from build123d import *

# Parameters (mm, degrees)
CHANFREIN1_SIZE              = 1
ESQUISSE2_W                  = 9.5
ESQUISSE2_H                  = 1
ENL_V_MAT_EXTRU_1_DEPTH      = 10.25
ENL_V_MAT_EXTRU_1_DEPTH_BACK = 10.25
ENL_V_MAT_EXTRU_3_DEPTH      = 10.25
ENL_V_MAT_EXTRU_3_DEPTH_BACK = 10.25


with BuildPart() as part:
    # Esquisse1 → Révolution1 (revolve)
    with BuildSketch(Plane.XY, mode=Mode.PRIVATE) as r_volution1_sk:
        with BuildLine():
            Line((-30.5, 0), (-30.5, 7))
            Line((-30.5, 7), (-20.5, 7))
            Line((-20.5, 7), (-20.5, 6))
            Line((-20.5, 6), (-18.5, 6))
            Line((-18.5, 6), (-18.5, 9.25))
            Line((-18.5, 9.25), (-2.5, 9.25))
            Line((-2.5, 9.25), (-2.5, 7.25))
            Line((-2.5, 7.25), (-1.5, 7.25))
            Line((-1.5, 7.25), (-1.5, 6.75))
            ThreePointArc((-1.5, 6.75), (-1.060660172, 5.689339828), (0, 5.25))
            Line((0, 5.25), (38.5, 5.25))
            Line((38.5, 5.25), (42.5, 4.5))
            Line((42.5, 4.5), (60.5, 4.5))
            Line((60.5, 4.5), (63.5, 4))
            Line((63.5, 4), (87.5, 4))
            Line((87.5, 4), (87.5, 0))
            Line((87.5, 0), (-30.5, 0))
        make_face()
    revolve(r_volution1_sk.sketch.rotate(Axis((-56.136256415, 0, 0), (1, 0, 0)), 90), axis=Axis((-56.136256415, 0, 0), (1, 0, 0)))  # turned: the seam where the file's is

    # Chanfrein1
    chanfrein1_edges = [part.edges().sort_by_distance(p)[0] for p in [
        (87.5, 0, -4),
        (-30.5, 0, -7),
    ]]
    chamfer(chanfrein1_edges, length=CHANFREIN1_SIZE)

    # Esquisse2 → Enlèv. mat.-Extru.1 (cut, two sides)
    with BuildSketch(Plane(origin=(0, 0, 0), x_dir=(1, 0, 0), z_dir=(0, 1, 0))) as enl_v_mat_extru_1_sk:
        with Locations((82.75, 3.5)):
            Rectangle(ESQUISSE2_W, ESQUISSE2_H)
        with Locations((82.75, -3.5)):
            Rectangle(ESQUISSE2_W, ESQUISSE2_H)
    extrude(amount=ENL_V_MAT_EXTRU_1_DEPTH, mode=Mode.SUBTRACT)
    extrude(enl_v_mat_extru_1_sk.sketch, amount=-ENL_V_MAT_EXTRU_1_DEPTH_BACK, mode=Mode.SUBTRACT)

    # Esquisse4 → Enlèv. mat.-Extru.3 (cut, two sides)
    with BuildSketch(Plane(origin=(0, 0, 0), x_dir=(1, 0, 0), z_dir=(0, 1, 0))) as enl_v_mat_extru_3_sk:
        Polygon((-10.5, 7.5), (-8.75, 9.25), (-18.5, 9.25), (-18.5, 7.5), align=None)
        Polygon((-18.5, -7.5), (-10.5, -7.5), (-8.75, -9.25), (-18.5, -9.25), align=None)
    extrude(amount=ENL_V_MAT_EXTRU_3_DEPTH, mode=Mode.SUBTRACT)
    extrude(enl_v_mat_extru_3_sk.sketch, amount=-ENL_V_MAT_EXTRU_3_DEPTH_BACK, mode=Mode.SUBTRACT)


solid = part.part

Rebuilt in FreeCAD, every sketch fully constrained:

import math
import FreeCAD as App
import Part
import Sketcher
from FreeCAD import Vector
Q = App.Units.Quantity


def edges_at(feature, points):
    """Names of the edges that pass closest to the given points."""
    edges = feature.Shape.Edges
    near = lambda p: min(range(len(edges)), key=lambda i: edges[i].distToShape(Part.Vertex(*p))[0])
    return sorted({f"Edge{near(p) + 1}" for p in points})

doc = App.newDocument("Part")
body = doc.addObject("PartDesign::Body", "Body")

# Sketch on XY plane
sketch1 = doc.addObject("Sketcher::SketchObject", "Sketch")
body.addObject(sketch1)
sketch1.AttachmentSupport = (doc.XY_Plane, [""])
sketch1.MapMode = "FlatFace"
sketch1.addGeometry([
    Part.LineSegment(Vector(-30.5, 7, 0), Vector(-30.5, 0, 0)),  # 0
    Part.LineSegment(Vector(-30.5, 0, 0), Vector(87.5, 0, 0)),  # 1
    Part.LineSegment(Vector(87.5, 0, 0), Vector(87.5, 4, 0)),  # 2
    Part.LineSegment(Vector(87.5, 4, 0), Vector(63.5, 4, 0)),  # 3
    Part.LineSegment(Vector(63.5, 4, 0), Vector(60.5, 4.5, 0)),  # 4
    Part.LineSegment(Vector(60.5, 4.5, 0), Vector(42.5, 4.5, 0)),  # 5
    Part.LineSegment(Vector(42.5, 4.5, 0), Vector(38.5, 5.2, 0)),  # 6
    Part.LineSegment(Vector(38.5, 5.2, 0), Vector(0, 5.2, 0)),  # 7
    Part.ArcOfCircle(Part.Circle(Vector(0, 6.7, 0), Vector(0, 0, 1), 1.5), math.radians(180), math.radians(270)),  # 8
    Part.LineSegment(Vector(-1.5, 6.8, 0), Vector(-1.5, 7.2, 0)),  # 9
    Part.LineSegment(Vector(-1.5, 7.2, 0), Vector(-2.5, 7.2, 0)),  # 10
    Part.LineSegment(Vector(-2.5, 7.2, 0), Vector(-2.5, 9.2, 0)),  # 11
    Part.LineSegment(Vector(-2.5, 9.2, 0), Vector(-18.5, 9.2, 0)),  # 12
    Part.LineSegment(Vector(-18.5, 9.2, 0), Vector(-18.5, 6, 0)),  # 13
    Part.LineSegment(Vector(-18.5, 6, 0), Vector(-20.5, 6, 0)),  # 14
    Part.LineSegment(Vector(-20.5, 6, 0), Vector(-20.5, 7, 0)),  # 15
    Part.LineSegment(Vector(-20.5, 7, 0), Vector(-30.5, 7, 0)),  # 16
], False)
sketch1.addConstraint([
    Sketcher.Constraint("Coincident", 0, 2, 1, 1),
    Sketcher.Constraint("Coincident", 1, 2, 2, 1),
    Sketcher.Constraint("Coincident", 2, 2, 3, 1),
    Sketcher.Constraint("Coincident", 3, 2, 4, 1),
    Sketcher.Constraint("Coincident", 4, 2, 5, 1),
    Sketcher.Constraint("Coincident", 5, 2, 6, 1),
    Sketcher.Constraint("Coincident", 6, 2, 7, 1),
    Sketcher.Constraint("Tangent", 7, 2, 8, 2),
    Sketcher.Constraint("Tangent", 8, 1, 9, 1),
    Sketcher.Constraint("Coincident", 9, 2, 10, 1),
    Sketcher.Constraint("Coincident", 10, 2, 11, 1),
    Sketcher.Constraint("Coincident", 11, 2, 12, 1),
    Sketcher.Constraint("Coincident", 12, 2, 13, 1),
    Sketcher.Constraint("Coincident", 13, 2, 14, 1),
    Sketcher.Constraint("Coincident", 14, 2, 15, 1),
    Sketcher.Constraint("Coincident", 15, 2, 16, 1),
    Sketcher.Constraint("Coincident", 16, 2, 0, 1),
    Sketcher.Constraint("Vertical", 0),
    Sketcher.Constraint("Horizontal", 1),
    Sketcher.Constraint("Vertical", 2),
    Sketcher.Constraint("Horizontal", 3),
    Sketcher.Constraint("Horizontal", 5),
    Sketcher.Constraint("Horizontal", 7),
    Sketcher.Constraint("Vertical", 9),
    Sketcher.Constraint("Horizontal", 10),
    Sketcher.Constraint("Vertical", 11),
    Sketcher.Constraint("Horizontal", 12),
    Sketcher.Constraint("Vertical", 13),
    Sketcher.Constraint("Horizontal", 14),
    Sketcher.Constraint("Vertical", 15),
    Sketcher.Constraint("Horizontal", 16),
    Sketcher.Constraint("PointOnObject", 8, 3, -2),
    Sketcher.Constraint("PointOnObject", 0, 2, -1),
    Sketcher.Constraint("Equal", 14, 11),
    Sketcher.Constraint("Equal", 10, 15),
    Sketcher.Constraint("Radius", 8, Q("1.5 mm")),
    Sketcher.Constraint("DistanceX", 1, 1, 1, 2, Q("118 mm")),
    Sketcher.Constraint("DistanceX", 3, 2, 3, 1, Q("24 mm")),
    Sketcher.Constraint("DistanceX", 5, 2, 5, 1, Q("18 mm")),
    Sketcher.Constraint("DistanceX", 10, 2, 10, 1, Q("1 mm")),
    Sketcher.Constraint("DistanceX", 12, 2, 12, 1, Q("16 mm")),
    Sketcher.Constraint("DistanceX", 14, 2, 14, 1, Q("2 mm")),
    Sketcher.Constraint("DistanceX", 16, 2, 16, 1, Q("10 mm")),
    Sketcher.Constraint("DistanceY", 0, 2, 0, 1, Q("7 mm")),
    Sketcher.Constraint("DistanceY", 2, 1, 2, 2, Q("4 mm")),
    Sketcher.Constraint("DistanceX", 7, 2, 7, 1, Q("38.5 mm")),
    Sketcher.Constraint("DistanceY", 9, 1, 9, 2, Q("0.5 mm")),
    Sketcher.Constraint("DistanceX", 4, 2, 3, 2, Q("3 mm")),
    Sketcher.Constraint("DistanceY", 13, 2, 13, 1, Q("3.25 mm")),
    Sketcher.Constraint("DistanceY", -1, 1, 4, 2, Q("4.5 mm")),
])
revolution = doc.addObject("PartDesign::Revolution", "Revolution")
body.addObject(revolution)
revolution.Profile = sketch1
revolution.ReferenceAxis = (sketch1, ["H_Axis"])
revolution.Angle = 360
doc.recompute()

chamfer = doc.addObject("PartDesign::Chamfer", "Chamfer")
body.addObject(chamfer)
chamfer.Base = (revolution, edges_at(revolution, [(87.5, 0, -4), (-30.5, 0, -7)]))
chamfer.Size = 1

# Sketch on XZ plane
sketch2 = doc.addObject("Sketcher::SketchObject", "Sketch001")
body.addObject(sketch2)
sketch2.AttachmentSupport = (doc.XZ_Plane, [""])
sketch2.MapMode = "FlatFace"
sketch2.addGeometry([
    Part.LineSegment(Vector(78, -4, 0), Vector(78, -3, 0)),  # 0
    Part.LineSegment(Vector(78, -3, 0), Vector(87.5, -3, 0)),  # 1
    Part.LineSegment(Vector(87.5, -3, 0), Vector(87.5, -4, 0)),  # 2
    Part.LineSegment(Vector(87.5, -4, 0), Vector(78, -4, 0)),  # 3
    Part.LineSegment(Vector(78, 3, 0), Vector(78, 4, 0)),  # 4
    Part.LineSegment(Vector(78, 4, 0), Vector(87.5, 4, 0)),  # 5
    Part.LineSegment(Vector(87.5, 4, 0), Vector(87.5, 3, 0)),  # 6
    Part.LineSegment(Vector(87.5, 3, 0), Vector(78, 3, 0)),  # 7
], False)
sketch2.addConstraint([
    Sketcher.Constraint("Coincident", 0, 2, 1, 1),
    Sketcher.Constraint("Coincident", 1, 2, 2, 1),
    Sketcher.Constraint("Coincident", 2, 2, 3, 1),
    Sketcher.Constraint("Coincident", 3, 2, 0, 1),
    Sketcher.Constraint("Coincident", 4, 2, 5, 1),
    Sketcher.Constraint("Coincident", 5, 2, 6, 1),
    Sketcher.Constraint("Coincident", 6, 2, 7, 1),
    Sketcher.Constraint("Coincident", 7, 2, 4, 1),
    Sketcher.Constraint("Vertical", 0),
    Sketcher.Constraint("Horizontal", 1),
    Sketcher.Constraint("Vertical", 2),
    Sketcher.Constraint("Horizontal", 3),
    Sketcher.Constraint("Vertical", 4),
    Sketcher.Constraint("Horizontal", 5),
    Sketcher.Constraint("Vertical", 6),
    Sketcher.Constraint("Horizontal", 7),
    Sketcher.Constraint("Symmetric", 3, 2, 4, 2, -1),
    Sketcher.Constraint("Symmetric", 1, 2, 6, 2, -1),
    Sketcher.Constraint("DistanceY", 0, 1, 0, 2, Q("1 mm")),
    Sketcher.Constraint("DistanceX", 1, 1, 1, 2, Q("9.5 mm")),
    Sketcher.Constraint("DistanceX", -1, 1, 0, 2, Q("78 mm")),
    Sketcher.Constraint("DistanceY", 0, 2, -1, 1, Q("3 mm")),
])
pocket1 = doc.addObject("PartDesign::Pocket", "Pocket")
body.addObject(pocket1)
pocket1.Profile = sketch2
pocket1.Type = "ThroughAll"
pocket1.Midplane = True

# Sketch on XZ plane
sketch3 = doc.addObject("Sketcher::SketchObject", "Sketch002")
body.addObject(sketch3)
sketch3.AttachmentSupport = (doc.XZ_Plane, [""])
sketch3.MapMode = "FlatFace"
sketch3.addGeometry([
    Part.LineSegment(Vector(-10.5, -7.5, 0), Vector(-8.8, -9.2, 0)),  # 0
    Part.LineSegment(Vector(-8.8, -9.2, 0), Vector(-18.5, -9.2, 0)),  # 1
    Part.LineSegment(Vector(-18.5, -9.2, 0), Vector(-18.5, -7.5, 0)),  # 2
    Part.LineSegment(Vector(-18.5, -7.5, 0), Vector(-10.5, -7.5, 0)),  # 3
    Part.LineSegment(Vector(-10.5, 7.5, 0), Vector(-18.5, 7.5, 0)),  # 4
    Part.LineSegment(Vector(-18.5, 7.5, 0), Vector(-18.5, 9.2, 0)),  # 5
    Part.LineSegment(Vector(-18.5, 9.2, 0), Vector(-8.8, 9.2, 0)),  # 6
    Part.LineSegment(Vector(-8.8, 9.2, 0), Vector(-10.5, 7.5, 0)),  # 7
], False)
sketch3.addConstraint([
    Sketcher.Constraint("Coincident", 0, 2, 1, 1),
    Sketcher.Constraint("Coincident", 1, 2, 2, 1),
    Sketcher.Constraint("Coincident", 2, 2, 3, 1),
    Sketcher.Constraint("Coincident", 3, 2, 0, 1),
    Sketcher.Constraint("Coincident", 4, 2, 5, 1),
    Sketcher.Constraint("Coincident", 5, 2, 6, 1),
    Sketcher.Constraint("Coincident", 6, 2, 7, 1),
    Sketcher.Constraint("Coincident", 7, 2, 4, 1),
    Sketcher.Constraint("Horizontal", 1),
    Sketcher.Constraint("Vertical", 2),
    Sketcher.Constraint("Horizontal", 3),
    Sketcher.Constraint("Horizontal", 4),
    Sketcher.Constraint("Vertical", 5),
    Sketcher.Constraint("Horizontal", 6),
    Sketcher.Constraint("Symmetric", 2, 2, 4, 2, -1),
    Sketcher.Constraint("Symmetric", 0, 2, 6, 2, -1),
    Sketcher.Constraint("Perpendicular", 0, 7),
    Sketcher.Constraint("Vertical", 3, 2, 7, 2),
    Sketcher.Constraint("DistanceX", 3, 1, 3, 2, Q("8 mm")),
    Sketcher.Constraint("DistanceY", 2, 2, 4, 2, Q("15 mm")),
    Sketcher.Constraint("DistanceX", 1, 2, 1, 1, Q("9.75 mm")),
    Sketcher.Constraint("DistanceX", 1, 2, -1, 1, Q("18.5 mm")),
])
pocket2 = doc.addObject("PartDesign::Pocket", "Pocket001")
body.addObject(pocket2)
pocket2.Profile = sketch3
pocket2.Type = "ThroughAll"
pocket2.Midplane = True

doc.recompute()
